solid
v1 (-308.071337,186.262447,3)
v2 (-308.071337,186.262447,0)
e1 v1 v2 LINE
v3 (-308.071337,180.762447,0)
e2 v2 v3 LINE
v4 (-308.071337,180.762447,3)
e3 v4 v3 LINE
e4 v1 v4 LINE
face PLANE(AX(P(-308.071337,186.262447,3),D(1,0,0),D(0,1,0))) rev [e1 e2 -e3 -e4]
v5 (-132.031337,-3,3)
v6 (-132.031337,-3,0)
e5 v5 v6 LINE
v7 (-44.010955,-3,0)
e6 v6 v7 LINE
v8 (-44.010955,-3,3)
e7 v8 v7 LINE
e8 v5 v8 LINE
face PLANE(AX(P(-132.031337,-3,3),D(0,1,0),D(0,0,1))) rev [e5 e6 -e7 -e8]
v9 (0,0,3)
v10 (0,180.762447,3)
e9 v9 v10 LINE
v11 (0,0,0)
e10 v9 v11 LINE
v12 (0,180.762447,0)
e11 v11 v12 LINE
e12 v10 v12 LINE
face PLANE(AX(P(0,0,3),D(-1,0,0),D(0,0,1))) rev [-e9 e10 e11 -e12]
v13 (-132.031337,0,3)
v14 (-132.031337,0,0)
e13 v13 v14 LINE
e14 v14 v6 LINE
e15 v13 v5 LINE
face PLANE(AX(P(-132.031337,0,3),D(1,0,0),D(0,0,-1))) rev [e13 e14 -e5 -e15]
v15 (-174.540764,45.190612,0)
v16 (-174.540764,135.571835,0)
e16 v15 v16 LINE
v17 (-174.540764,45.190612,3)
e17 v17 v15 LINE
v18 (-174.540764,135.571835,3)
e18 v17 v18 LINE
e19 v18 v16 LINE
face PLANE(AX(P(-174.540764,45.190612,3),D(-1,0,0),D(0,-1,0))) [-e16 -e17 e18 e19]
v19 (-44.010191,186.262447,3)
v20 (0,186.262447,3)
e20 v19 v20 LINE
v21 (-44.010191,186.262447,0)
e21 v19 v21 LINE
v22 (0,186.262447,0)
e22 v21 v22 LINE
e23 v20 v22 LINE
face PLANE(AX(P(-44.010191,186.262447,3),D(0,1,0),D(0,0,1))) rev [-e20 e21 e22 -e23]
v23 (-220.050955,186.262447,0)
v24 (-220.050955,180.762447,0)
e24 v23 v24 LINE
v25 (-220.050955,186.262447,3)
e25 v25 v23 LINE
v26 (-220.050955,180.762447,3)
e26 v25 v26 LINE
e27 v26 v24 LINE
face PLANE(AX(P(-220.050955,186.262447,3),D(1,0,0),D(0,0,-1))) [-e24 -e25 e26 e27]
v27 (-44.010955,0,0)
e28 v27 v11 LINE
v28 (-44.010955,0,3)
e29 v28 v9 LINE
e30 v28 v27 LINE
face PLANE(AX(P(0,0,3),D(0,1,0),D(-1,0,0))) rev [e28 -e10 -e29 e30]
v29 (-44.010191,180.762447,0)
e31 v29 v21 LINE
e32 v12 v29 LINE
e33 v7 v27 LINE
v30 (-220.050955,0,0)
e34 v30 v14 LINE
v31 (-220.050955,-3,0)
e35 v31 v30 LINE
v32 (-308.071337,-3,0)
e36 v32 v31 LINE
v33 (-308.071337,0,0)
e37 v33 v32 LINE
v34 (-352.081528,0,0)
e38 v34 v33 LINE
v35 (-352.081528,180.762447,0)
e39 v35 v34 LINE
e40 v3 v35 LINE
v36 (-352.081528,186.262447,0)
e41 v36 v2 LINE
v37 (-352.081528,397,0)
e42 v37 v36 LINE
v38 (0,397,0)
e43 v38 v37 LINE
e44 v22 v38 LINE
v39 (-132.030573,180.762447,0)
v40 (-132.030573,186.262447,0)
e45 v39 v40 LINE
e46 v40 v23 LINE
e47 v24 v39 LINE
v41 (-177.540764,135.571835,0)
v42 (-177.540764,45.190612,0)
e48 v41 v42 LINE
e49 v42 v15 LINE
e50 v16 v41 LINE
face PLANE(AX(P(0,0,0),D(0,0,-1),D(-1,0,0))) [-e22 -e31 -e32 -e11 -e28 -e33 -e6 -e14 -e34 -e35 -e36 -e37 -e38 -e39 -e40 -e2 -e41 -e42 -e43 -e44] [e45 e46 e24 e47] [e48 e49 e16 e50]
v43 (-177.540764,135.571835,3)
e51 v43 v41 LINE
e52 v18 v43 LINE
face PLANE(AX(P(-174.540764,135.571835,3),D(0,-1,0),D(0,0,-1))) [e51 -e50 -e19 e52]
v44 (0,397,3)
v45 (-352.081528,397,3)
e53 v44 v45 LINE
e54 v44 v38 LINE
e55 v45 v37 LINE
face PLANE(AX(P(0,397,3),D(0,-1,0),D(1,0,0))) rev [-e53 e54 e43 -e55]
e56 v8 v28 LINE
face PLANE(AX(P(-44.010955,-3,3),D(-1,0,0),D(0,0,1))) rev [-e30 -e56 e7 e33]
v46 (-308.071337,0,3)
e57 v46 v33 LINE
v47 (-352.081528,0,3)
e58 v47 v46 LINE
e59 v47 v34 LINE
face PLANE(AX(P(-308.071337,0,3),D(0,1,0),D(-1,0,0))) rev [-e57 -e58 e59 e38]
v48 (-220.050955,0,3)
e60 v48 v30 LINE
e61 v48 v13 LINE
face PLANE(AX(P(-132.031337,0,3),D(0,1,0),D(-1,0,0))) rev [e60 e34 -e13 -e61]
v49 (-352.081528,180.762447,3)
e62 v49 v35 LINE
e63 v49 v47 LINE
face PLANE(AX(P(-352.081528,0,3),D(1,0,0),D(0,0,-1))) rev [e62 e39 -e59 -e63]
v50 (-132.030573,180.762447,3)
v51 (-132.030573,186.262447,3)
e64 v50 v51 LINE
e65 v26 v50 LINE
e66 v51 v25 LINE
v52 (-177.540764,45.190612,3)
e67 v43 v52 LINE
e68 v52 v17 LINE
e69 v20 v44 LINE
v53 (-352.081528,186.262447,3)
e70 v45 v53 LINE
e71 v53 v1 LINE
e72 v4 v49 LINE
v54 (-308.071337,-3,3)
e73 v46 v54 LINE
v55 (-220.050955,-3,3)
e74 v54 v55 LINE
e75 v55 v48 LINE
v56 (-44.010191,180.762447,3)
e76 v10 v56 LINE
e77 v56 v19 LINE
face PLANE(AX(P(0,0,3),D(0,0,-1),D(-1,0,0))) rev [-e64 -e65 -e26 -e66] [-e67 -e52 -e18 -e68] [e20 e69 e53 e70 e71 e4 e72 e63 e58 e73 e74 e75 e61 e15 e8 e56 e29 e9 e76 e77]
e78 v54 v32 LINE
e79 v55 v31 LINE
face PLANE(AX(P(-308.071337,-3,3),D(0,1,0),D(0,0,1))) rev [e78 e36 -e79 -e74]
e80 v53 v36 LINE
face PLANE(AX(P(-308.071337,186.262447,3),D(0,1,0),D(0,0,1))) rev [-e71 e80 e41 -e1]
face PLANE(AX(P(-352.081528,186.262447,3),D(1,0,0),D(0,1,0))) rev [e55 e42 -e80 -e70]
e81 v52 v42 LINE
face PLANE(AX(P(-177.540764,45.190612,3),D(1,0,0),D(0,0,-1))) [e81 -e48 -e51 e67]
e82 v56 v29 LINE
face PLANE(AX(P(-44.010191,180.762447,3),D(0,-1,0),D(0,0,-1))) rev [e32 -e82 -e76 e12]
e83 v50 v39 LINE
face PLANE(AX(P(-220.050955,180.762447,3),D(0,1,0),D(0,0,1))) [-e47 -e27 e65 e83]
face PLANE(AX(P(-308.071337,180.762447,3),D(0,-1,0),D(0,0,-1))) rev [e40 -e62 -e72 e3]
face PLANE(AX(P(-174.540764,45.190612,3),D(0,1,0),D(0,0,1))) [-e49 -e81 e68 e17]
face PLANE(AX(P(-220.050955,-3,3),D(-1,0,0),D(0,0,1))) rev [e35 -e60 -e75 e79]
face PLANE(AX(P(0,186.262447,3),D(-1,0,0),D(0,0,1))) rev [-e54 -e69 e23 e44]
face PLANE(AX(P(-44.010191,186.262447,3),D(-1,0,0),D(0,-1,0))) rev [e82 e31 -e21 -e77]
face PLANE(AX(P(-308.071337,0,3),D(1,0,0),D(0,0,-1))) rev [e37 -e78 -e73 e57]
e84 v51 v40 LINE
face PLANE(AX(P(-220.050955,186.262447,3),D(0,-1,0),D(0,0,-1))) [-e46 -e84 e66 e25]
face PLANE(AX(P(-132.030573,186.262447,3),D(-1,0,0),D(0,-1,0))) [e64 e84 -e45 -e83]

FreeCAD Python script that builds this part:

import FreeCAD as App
import Part
import Sketcher
from FreeCAD import Vector

doc = App.newDocument("Part")
body = doc.addObject("PartDesign::Body", "Body")

sketch1 = body.newObject("Sketcher::SketchObject", "Sketch")
sketch1.AttachmentSupport = (doc.getObject("XY_Plane"), [""])
sketch1.MapMode = "FlatFace"
sketch1.addGeometry([
    Part.LineSegment(Vector(-308.1, 0, 0), Vector(-308.1, -3, 0)),
    Part.LineSegment(Vector(-308.1, -3, 0), Vector(-220.1, -3, 0)),
    Part.LineSegment(Vector(-220.1, -3, 0), Vector(-220.1, 0, 0)),
    Part.LineSegment(Vector(-220.1, 0, 0), Vector(-132, 0, 0)),
    Part.LineSegment(Vector(-132, 0, 0), Vector(-132, -3, 0)),
    Part.LineSegment(Vector(-132, -3, 0), Vector(-44, -3, 0)),
    Part.LineSegment(Vector(-44, -3, 0), Vector(-44, 0, 0)),
    Part.LineSegment(Vector(-44, 0, 0), Vector(0, 0, 0)),
    Part.LineSegment(Vector(0, 0, 0), Vector(0, 180.8, 0)),
    Part.LineSegment(Vector(0, 180.8, 0), Vector(-44, 180.8, 0)),
    Part.LineSegment(Vector(-44, 180.8, 0), Vector(-44, 186.3, 0)),
    Part.LineSegment(Vector(-44, 186.3, 0), Vector(0, 186.3, 0)),
    Part.LineSegment(Vector(0, 186.3, 0), Vector(0, 397, 0)),
    Part.LineSegment(Vector(0, 397, 0), Vector(-352.1, 397, 0)),
    Part.LineSegment(Vector(-352.1, 397, 0), Vector(-352.1, 186.3, 0)),
    Part.LineSegment(Vector(-352.1, 186.3, 0), Vector(-308.1, 186.3, 0)),
    Part.LineSegment(Vector(-308.1, 186.3, 0), Vector(-308.1, 180.8, 0)),
    Part.LineSegment(Vector(-308.1, 180.8, 0), Vector(-352.1, 180.8, 0)),
    Part.LineSegment(Vector(-352.1, 180.8, 0), Vector(-352.1, 0, 0)),
    Part.LineSegment(Vector(-352.1, 0, 0), Vector(-308.1, 0, 0)),
    Part.LineSegment(Vector(-174.5, 45.2, 0), Vector(-177.5, 45.2, 0)),
    Part.LineSegment(Vector(-177.5, 45.2, 0), Vector(-177.5, 135.6, 0)),
    Part.LineSegment(Vector(-177.5, 135.6, 0), Vector(-174.5, 135.6, 0)),
    Part.LineSegment(Vector(-174.5, 135.6, 0), Vector(-174.5, 45.2, 0)),
    Part.LineSegment(Vector(-132, 180.8, 0), Vector(-220.1, 180.8, 0)),
    Part.LineSegment(Vector(-220.1, 180.8, 0), Vector(-220.1, 186.3, 0)),
    Part.LineSegment(Vector(-220.1, 186.3, 0), Vector(-132, 186.3, 0)),
    Part.LineSegment(Vector(-132, 186.3, 0), Vector(-132, 180.8, 0)),
], False)
sketch1.addConstraint([
    Sketcher.Constraint("Coincident", 0, 2, 1, 1),
    Sketcher.Constraint("Coincident", 1, 2, 2, 1),
    Sketcher.Constraint("Coincident", 2, 2, 3, 1),
    Sketcher.Constraint("Coincident", 3, 2, 4, 1),
    Sketcher.Constraint("Coincident", 4, 2, 5, 1),
    Sketcher.Constraint("Coincident", 5, 2, 6, 1),
    Sketcher.Constraint("Coincident", 6, 2, 7, 1),
    Sketcher.Constraint("Coincident", 7, 2, 8, 1),
    Sketcher.Constraint("Coincident", 8, 2, 9, 1),
    Sketcher.Constraint("Coincident", 9, 2, 10, 1),
    Sketcher.Constraint("Coincident", 10, 2, 11, 1),
    Sketcher.Constraint("Coincident", 11, 2, 12, 1),
    Sketcher.Constraint("Coincident", 12, 2, 13, 1),
    Sketcher.Constraint("Coincident", 13, 2, 14, 1),
    Sketcher.Constraint("Coincident", 14, 2, 15, 1),
    Sketcher.Constraint("Coincident", 15, 2, 16, 1),
    Sketcher.Constraint("Coincident", 16, 2, 17, 1),
    Sketcher.Constraint("Coincident", 17, 2, 18, 1),
    Sketcher.Constraint("Coincident", 18, 2, 19, 1),
    Sketcher.Constraint("Coincident", 19, 2, 0, 1),
    Sketcher.Constraint("Coincident", 20, 2, 21, 1),
    Sketcher.Constraint("Coincident", 21, 2, 22, 1),
    Sketcher.Constraint("Coincident", 22, 2, 23, 1),
    Sketcher.Constraint("Coincident", 23, 2, 20, 1),
    Sketcher.Constraint("Coincident", 24, 2, 25, 1),
    Sketcher.Constraint("Coincident", 25, 2, 26, 1),
    Sketcher.Constraint("Coincident", 26, 2, 27, 1),
    Sketcher.Constraint("Coincident", 27, 2, 24, 1),
    Sketcher.Constraint("Vertical", 0),
    Sketcher.Constraint("Horizontal", 1),
    Sketcher.Constraint("Vertical", 2),
    Sketcher.Constraint("Horizontal", 3),
    Sketcher.Constraint("Vertical", 4),
    Sketcher.Constraint("Horizontal", 5),
    Sketcher.Constraint("Vertical", 6),
    Sketcher.Constraint("Horizontal", 7),
    Sketcher.Constraint("Vertical", 8),
    Sketcher.Constraint("Horizontal", 9),
    Sketcher.Constraint("Vertical", 10),
    Sketcher.Constraint("Horizontal", 11),
    Sketcher.Constraint("Vertical", 12),
    Sketcher.Constraint("Horizontal", 13),
    Sketcher.Constraint("Vertical", 14),
    Sketcher.Constraint("Horizontal", 15),
    Sketcher.Constraint("Vertical", 16),
    Sketcher.Constraint("Horizontal", 17),
    Sketcher.Constraint("Vertical", 18),
    Sketcher.Constraint("Horizontal", 19),
    Sketcher.Constraint("Horizontal", 20),
    Sketcher.Constraint("Vertical", 21),
    Sketcher.Constraint("Horizontal", 22),
    Sketcher.Constraint("Vertical", 23),
    Sketcher.Constraint("Horizontal", 24),
    Sketcher.Constraint("Vertical", 25),
    Sketcher.Constraint("Horizontal", 26),
    Sketcher.Constraint("Vertical", 27),
    Sketcher.Constraint("Coincident", 7, 2, -1, 1),
    Sketcher.Constraint("PointOnObject", 2, 2, -1),
    Sketcher.Constraint("PointOnObject", 11, 2, -2),
    Sketcher.Constraint("PointOnObject", 18, 2, -1),
    Sketcher.Constraint("Horizontal", 1, 2, 4, 2),
    Sketcher.Constraint("Horizontal", 11, 2, 14, 2),
    Sketcher.Constraint("Horizontal", 9, 2, 16, 2),
    Sketcher.Constraint("Horizontal", 17, 2, 24, 2),
    Sketcher.Constraint("Horizontal", 15, 2, 25, 2),
    Sketcher.Constraint("Vertical", 0, 2, 15, 2),
    Sketcher.Constraint("Vertical", 14, 2, 17, 2),
    Sketcher.Constraint("Vertical", 2, 2, 24, 2),
    Sketcher.Constraint("Equal", 1, 5),
    Sketcher.Constraint("Equal", 11, 15),
    Sketcher.Constraint("Equal", 5, 24),
    Sketcher.Constraint("Equal", 22, 0),
    Sketcher.Constraint("DistanceX", 20, 2, 20, 1, 3.0),
    Sketcher.Constraint("DistanceY", 10, 1, 10, 2, 5.5),
    Sketcher.Constraint("DistanceY", -1, 1, 12, 2, 397.0),
    Sketcher.Constraint("DistanceX", 0, 2, 3, 2, 176.04),
    Sketcher.Constraint("DistanceX", 9, 2, 9, 1, 44.010191),
    Sketcher.Constraint("DistanceX", 13, 2, 13, 1, 352.081528),
    Sketcher.Constraint("DistanceX", 1, 1, 1, 2, 88.020382),
    Sketcher.Constraint("DistanceY", 8, 1, 8, 2, 180.762447),
    Sketcher.Constraint("DistanceY", 21, 1, 21, 2, 90.381223),
    Sketcher.Constraint("DistanceY", -1, 1, 20, 2, 45.190612),
    Sketcher.Constraint("DistanceX", 2, 2, 20, 2, 42.510191),
])
pad1 = body.newObject("PartDesign::Pad", "Pad")
pad1.Profile = sketch1
pad1.Length = 3

doc.recompute()
